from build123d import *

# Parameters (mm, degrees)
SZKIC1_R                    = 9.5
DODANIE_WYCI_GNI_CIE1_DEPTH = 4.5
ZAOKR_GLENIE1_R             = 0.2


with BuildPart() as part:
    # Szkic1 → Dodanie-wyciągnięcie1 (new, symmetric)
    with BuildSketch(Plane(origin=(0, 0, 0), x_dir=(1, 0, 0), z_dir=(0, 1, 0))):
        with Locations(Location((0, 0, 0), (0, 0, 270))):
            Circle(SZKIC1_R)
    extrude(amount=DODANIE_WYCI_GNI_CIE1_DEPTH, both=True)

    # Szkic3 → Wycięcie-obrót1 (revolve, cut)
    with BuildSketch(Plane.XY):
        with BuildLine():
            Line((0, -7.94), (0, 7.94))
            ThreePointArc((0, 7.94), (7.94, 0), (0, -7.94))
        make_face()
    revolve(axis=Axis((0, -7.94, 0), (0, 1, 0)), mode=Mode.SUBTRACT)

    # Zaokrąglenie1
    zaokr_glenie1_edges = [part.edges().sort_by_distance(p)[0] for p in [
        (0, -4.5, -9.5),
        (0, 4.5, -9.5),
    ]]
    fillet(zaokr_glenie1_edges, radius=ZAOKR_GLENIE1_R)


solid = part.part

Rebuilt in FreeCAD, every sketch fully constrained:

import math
import FreeCAD as App
import Part
import Sketcher
from FreeCAD import Vector


def edges_at(feature, points):
    """Names of the edges that pass closest to the given points."""
    edges = feature.Shape.Edges
    near = lambda p: min(range(len(edges)), key=lambda i: edges[i].distToShape(Part.Vertex(*p))[0])
    return sorted({f"Edge{near(p) + 1}" for p in points})

doc = App.newDocument("Part")
body = doc.addObject("PartDesign::Body", "Body")

# Sketch on XZ plane
sketch1 = body.newObject("Sketcher::SketchObject", "Sketch")
sketch1.AttachmentSupport = (doc.getObject("XZ_Plane"), [""])
sketch1.MapMode = "FlatFace"
sketch1.addGeometry(Part.Circle(Vector(0, 0, 0), Vector(0, 0, 1), 10), False)
sketch1.addConstraint([
    Sketcher.Constraint("Coincident", 0, 3, -1, 1),
    Sketcher.Constraint("Diameter", 0, 19.0),
])
pad1 = body.newObject("PartDesign::Pad", "Pad")
pad1.Profile = sketch1
pad1.Length = 9
pad1.Midplane = True

# Sketch on XY plane
sketch2 = body.newObject("Sketcher::SketchObject", "Sketch001")
sketch2.AttachmentSupport = (doc.getObject("XY_Plane"), [""])
sketch2.MapMode = "FlatFace"
sketch2.addGeometry([
    Part.LineSegment(Vector(0, 8, 0), Vector(0, -8, 0)),
    Part.ArcOfCircle(Part.Circle(Vector(0, 0, 0), Vector(0, 0, 1), 8), math.radians(-90), math.radians(90)),
], False)
sketch2.addConstraint([
    Sketcher.Constraint("Coincident", 0, 1, 1, 2),
    Sketcher.Constraint("Coincident", 1, 1, 0, 2),
    Sketcher.Constraint("Vertical", 0),
    Sketcher.Constraint("Coincident", 1, 3, -1, 1),
    Sketcher.Constraint("PointOnObject", 0, 1, -2),
    Sketcher.Constraint("Radius", 1, 7.94),
])
groove = body.newObject("PartDesign::Groove", "Groove")
groove.Profile = sketch2
groove.ReferenceAxis = (sketch2, ["V_Axis"])
groove.Angle = 360
doc.recompute()

fillet = body.newObject("PartDesign::Fillet", "Fillet")
fillet.Base = (groove, edges_at(groove, [(0, -4.5, -9.5), (0, 4.5, -9.5)]))
fillet.Radius = 0.2

doc.recompute()
